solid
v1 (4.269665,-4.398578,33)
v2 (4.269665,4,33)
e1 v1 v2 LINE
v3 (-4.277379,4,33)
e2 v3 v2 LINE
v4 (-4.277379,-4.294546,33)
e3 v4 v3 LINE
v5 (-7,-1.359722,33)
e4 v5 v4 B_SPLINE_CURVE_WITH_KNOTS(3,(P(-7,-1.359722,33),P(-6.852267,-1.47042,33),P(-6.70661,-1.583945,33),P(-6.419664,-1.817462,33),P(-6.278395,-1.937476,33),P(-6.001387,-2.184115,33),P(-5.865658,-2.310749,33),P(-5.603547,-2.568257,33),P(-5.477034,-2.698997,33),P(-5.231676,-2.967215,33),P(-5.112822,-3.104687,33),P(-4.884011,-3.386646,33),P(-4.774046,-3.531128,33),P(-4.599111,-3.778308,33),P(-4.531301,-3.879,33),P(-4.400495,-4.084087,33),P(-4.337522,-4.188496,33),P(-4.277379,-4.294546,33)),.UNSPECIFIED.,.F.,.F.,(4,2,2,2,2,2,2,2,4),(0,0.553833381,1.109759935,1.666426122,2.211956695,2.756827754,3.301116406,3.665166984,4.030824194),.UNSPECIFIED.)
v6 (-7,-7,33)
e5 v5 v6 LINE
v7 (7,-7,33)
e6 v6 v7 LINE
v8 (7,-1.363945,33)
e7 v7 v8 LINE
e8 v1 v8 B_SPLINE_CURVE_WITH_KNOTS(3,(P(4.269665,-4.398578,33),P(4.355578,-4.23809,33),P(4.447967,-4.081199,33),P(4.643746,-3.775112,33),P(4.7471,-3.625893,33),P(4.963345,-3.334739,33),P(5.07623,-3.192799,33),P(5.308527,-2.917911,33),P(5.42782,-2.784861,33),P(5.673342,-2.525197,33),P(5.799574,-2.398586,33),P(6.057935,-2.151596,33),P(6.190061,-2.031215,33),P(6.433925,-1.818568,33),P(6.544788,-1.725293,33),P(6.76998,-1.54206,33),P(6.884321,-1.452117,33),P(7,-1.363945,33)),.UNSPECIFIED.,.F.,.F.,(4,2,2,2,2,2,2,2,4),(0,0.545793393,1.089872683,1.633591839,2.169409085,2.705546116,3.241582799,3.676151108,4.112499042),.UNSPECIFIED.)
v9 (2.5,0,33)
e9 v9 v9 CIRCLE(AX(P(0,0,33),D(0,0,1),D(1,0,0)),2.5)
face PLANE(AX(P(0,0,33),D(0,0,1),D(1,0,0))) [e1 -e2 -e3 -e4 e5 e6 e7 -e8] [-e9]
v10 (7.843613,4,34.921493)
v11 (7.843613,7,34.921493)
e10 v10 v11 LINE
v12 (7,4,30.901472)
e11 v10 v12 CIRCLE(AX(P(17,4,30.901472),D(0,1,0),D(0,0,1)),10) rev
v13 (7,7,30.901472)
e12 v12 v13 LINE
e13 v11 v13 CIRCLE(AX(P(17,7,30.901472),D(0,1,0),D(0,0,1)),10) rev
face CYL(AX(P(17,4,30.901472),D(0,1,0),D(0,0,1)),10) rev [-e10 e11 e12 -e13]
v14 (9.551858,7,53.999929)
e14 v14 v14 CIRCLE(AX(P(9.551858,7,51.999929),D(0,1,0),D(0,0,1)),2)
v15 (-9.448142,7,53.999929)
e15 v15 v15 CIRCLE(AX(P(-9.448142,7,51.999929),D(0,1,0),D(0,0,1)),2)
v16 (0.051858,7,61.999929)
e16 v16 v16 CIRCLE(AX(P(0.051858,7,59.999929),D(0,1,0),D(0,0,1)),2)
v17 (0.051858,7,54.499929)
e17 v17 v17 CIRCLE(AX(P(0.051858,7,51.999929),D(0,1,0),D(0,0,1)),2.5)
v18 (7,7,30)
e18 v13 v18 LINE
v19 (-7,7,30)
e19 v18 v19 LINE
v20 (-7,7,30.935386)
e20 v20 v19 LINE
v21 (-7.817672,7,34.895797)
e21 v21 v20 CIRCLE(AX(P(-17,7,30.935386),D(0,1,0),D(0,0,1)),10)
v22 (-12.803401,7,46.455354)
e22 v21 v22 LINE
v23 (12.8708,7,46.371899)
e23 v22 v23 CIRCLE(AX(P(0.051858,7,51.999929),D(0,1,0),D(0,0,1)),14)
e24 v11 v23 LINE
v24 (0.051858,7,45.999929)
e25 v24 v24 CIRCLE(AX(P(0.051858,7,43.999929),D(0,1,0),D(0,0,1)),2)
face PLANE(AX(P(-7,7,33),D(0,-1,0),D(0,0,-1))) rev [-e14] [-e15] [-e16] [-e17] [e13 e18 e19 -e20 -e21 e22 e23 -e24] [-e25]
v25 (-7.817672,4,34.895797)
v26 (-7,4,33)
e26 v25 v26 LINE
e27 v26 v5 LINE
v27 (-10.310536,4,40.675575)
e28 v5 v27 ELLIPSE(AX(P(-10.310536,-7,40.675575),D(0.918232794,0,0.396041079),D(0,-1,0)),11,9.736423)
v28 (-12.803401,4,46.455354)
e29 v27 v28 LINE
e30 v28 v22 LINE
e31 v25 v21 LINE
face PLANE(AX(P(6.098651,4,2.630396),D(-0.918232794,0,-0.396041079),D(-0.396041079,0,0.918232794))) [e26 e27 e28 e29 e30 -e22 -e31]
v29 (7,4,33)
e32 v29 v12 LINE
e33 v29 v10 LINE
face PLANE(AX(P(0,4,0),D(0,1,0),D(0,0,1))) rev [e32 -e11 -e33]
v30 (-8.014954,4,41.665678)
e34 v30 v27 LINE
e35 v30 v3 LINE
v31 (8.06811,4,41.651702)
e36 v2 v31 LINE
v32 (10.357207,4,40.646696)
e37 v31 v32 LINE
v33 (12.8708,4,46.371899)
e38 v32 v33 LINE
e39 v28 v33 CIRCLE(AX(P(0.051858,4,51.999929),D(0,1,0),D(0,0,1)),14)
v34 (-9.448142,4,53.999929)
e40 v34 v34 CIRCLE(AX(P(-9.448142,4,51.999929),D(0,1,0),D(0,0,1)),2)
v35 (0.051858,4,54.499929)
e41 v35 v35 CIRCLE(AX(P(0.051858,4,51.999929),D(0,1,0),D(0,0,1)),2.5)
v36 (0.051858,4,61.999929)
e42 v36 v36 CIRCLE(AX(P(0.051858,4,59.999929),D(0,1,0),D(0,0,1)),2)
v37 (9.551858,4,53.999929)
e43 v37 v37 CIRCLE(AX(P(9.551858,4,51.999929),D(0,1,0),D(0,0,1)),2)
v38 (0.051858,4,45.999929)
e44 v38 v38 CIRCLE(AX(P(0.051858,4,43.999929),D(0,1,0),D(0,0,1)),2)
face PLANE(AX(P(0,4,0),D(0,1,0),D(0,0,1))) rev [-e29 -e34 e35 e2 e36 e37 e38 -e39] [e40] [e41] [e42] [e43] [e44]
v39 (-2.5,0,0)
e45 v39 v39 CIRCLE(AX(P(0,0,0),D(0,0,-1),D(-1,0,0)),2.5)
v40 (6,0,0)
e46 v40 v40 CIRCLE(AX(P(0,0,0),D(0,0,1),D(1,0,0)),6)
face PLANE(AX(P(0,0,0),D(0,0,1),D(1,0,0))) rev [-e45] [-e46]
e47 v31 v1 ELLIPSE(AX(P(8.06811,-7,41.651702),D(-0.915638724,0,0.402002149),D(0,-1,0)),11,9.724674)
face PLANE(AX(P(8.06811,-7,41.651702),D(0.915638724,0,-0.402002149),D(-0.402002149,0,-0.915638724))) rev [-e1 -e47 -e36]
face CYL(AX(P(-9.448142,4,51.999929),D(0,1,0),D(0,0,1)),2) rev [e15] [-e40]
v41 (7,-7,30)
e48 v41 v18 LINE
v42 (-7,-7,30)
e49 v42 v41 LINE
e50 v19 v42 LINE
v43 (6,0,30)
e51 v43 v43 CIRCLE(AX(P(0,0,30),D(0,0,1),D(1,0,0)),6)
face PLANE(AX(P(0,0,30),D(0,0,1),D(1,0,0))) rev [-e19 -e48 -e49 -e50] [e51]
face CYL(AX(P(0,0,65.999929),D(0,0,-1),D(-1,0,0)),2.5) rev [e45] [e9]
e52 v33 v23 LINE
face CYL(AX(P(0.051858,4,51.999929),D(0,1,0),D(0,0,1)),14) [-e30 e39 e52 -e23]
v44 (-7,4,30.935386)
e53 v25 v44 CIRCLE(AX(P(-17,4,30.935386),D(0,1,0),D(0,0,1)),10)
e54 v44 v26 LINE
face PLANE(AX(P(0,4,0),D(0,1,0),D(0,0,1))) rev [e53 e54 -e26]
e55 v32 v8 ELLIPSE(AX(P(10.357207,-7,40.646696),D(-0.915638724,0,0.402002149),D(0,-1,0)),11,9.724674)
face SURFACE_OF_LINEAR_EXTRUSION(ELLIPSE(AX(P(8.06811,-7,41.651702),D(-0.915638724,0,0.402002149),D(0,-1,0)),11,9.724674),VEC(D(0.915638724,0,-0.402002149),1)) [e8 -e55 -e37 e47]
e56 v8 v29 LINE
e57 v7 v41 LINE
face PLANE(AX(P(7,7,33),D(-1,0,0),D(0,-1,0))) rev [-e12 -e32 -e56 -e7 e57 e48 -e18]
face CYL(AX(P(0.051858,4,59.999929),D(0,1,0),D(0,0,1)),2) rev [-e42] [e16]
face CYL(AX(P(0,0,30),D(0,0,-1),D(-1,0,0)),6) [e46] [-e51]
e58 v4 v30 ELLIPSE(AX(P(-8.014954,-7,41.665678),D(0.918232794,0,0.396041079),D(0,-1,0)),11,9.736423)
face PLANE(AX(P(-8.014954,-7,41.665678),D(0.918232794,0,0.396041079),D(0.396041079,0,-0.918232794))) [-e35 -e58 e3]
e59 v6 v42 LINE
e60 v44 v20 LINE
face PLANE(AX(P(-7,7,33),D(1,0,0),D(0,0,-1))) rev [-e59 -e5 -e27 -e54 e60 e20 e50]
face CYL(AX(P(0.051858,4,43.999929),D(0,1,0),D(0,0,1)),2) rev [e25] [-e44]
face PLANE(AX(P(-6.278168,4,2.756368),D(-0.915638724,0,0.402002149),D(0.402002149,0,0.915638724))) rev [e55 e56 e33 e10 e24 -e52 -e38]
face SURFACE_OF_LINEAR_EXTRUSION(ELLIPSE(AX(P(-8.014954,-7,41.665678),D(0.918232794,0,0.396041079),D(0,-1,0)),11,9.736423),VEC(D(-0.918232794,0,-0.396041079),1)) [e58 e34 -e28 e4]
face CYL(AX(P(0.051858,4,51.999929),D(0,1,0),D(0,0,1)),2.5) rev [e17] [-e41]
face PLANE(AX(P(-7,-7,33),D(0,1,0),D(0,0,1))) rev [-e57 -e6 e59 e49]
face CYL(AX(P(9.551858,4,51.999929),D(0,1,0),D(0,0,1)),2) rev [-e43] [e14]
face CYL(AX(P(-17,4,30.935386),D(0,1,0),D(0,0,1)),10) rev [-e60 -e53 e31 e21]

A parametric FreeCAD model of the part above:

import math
import FreeCAD as App
import Part
import Sketcher
from FreeCAD import Vector
Q = App.Units.Quantity


def add_polygon(sketch, points):
    """Adds a closed chain of lines whose ends are joined by coincident constraints."""
    first, n = sketch.GeometryCount, len(points)
    for a, b in zip(points, points[1:] + points[:1]):
        sketch.addGeometry(Part.LineSegment(App.Vector(*a, 0), App.Vector(*b, 0)), False)
    for i in range(n):
        sketch.addConstraint(Sketcher.Constraint("Coincident", first + i, 2, first + (i + 1) % n, 1))

doc = App.newDocument("Part")
body = doc.addObject("PartDesign::Body", "Body")

sketch1 = doc.addObject("Sketcher::SketchObject", "Sketch")
body.addObject(sketch1)
sketch1.AttachmentSupport = (doc.XY_Plane, [""])
sketch1.MapMode = "FlatFace"
sketch1.addGeometry(Part.Circle(Vector(0, 0, 0), Vector(0, 0, 1), 6), False)
sketch1.addConstraint([
    Sketcher.Constraint("Coincident", 0, 3, -1, 1),
    Sketcher.Constraint("Diameter", 0, Q("12 mm")),
])
pad1 = doc.addObject("PartDesign::Pad", "Pad")
body.addObject(pad1)
pad1.Profile = sketch1
pad1.Length = 30

sketch2 = doc.addObject("Sketcher::SketchObject", "Sketch001")
body.addObject(sketch2)
sketch2.AttachmentSupport = (doc.XY_Plane, [""])
sketch2.MapMode = "FlatFace"
sketch2.AttachmentOffset = App.Placement(Vector(0, 0, 30), App.Rotation())
add_polygon(sketch2, [(-7, 7), (-7, -7), (7, -7), (7, 7)])
sketch2.addConstraint([
    Sketcher.Constraint("Vertical", 0),
    Sketcher.Constraint("Horizontal", 1),
    Sketcher.Constraint("Vertical", 2),
    Sketcher.Constraint("Horizontal", 3),
    Sketcher.Constraint("Symmetric", 0, 2, 2, 2, -1, 1),
    Sketcher.Constraint("Equal", 3, 0),
    Sketcher.Constraint("DistanceX", 1, 1, 1, 2, Q("14 mm")),
])
pad2 = doc.addObject("PartDesign::Pad", "Pad001")
body.addObject(pad2)
pad2.Profile = sketch2
pad2.Length = 3

sketch3 = doc.addObject("Sketcher::SketchObject", "Sketch002")
body.addObject(sketch3)
sketch3.AttachmentSupport = (doc.XZ_Plane, [""])
sketch3.MapMode = "FlatFace"
sketch3.AttachmentOffset = App.Placement(Vector(0, 0, -7), App.Rotation())
sketch3.addGeometry([
    Part.ArcOfCircle(Part.Circle(Vector(-17, 30.9, 0), Vector(0, 0, 1), 10), math.radians(0), math.radians(23)),
    Part.LineSegment(Vector(-7.8, 34.9, 0), Vector(-12.8, 46.5, 0)),
    Part.ArcOfCircle(Part.Circle(Vector(0.1, 52, 0), Vector(0, 0, 1), 14), math.radians(0), math.radians(203)),
    Part.ArcOfCircle(Part.Circle(Vector(0.1, 52, 0), Vector(0, 0, 1), 14), math.radians(-24), math.radians(0)),
    Part.LineSegment(Vector(12.9, 46.4, 0), Vector(7.8, 34.9, 0)),
    Part.ArcOfCircle(Part.Circle(Vector(17, 30.9, 0), Vector(0, 0, 1), 10), math.radians(156), math.radians(180)),
    Part.LineSegment(Vector(7, 30.9, 0), Vector(7, 33, 0)),
    Part.LineSegment(Vector(7, 33, 0), Vector(-7, 33, 0)),
    Part.LineSegment(Vector(-7, 33, 0), Vector(-7, 30.9, 0)),
    Part.Circle(Vector(0.1, 44, 0), Vector(0, 0, 1), 2),
    Part.Circle(Vector(0.1, 60, 0), Vector(0, 0, 1), 2),
    Part.Circle(Vector(-9.4, 52, 0), Vector(0, 0, 1), 2),
    Part.Circle(Vector(0.1, 52, 0), Vector(0, 0, 1), 2.5),
    Part.Circle(Vector(9.6, 52, 0), Vector(0, 0, 1), 2),
], False)
sketch3.addConstraint([
    Sketcher.Constraint("Tangent", 0, 2, 1, 1),
    Sketcher.Constraint("Tangent", 1, 2, 2, 2),
    Sketcher.Constraint("Tangent", 2, 1, 3, 2),
    Sketcher.Constraint("Tangent", 3, 1, 4, 1),
    Sketcher.Constraint("Tangent", 4, 2, 5, 1),
    Sketcher.Constraint("Tangent", 5, 2, 6, 1),
    Sketcher.Constraint("Coincident", 6, 2, 7, 1),
    Sketcher.Constraint("Coincident", 7, 2, 8, 1),
    Sketcher.Constraint("Tangent", 8, 2, 0, 1),
    Sketcher.Constraint("Vertical", 6),
    Sketcher.Constraint("Horizontal", 7),
    Sketcher.Constraint("Vertical", 8),
    Sketcher.Constraint("Coincident", 12, 3, 2, 3),
    Sketcher.Constraint("Equal", 2, 3),
    Sketcher.Constraint("Equal", 0, 5),
    Sketcher.Constraint("Equal", 9, 10),
    Sketcher.Constraint("Equal", 10, 11),
    Sketcher.Constraint("Equal", 11, 13),
    Sketcher.Constraint("Horizontal", 3, 3, 11, 3),
    Sketcher.Constraint("Horizontal", 12, 3, 13, 3),
    Sketcher.Constraint("Horizontal", 13, 3, 2, 1),
    Sketcher.Constraint("Vertical", 3, 3, 9, 3),
    Sketcher.Constraint("Vertical", 9, 3, 10, 3),
    Sketcher.Constraint("Diameter", 9, Q("4 mm")),
    Sketcher.Constraint("Diameter", 12, Q("5 mm")),
    Sketcher.Constraint("Radius", 0, Q("10 mm")),
    Sketcher.Constraint("Radius", 2, Q("14 mm")),
    Sketcher.Constraint("DistanceX", 7, 2, 7, 1, Q("14 mm")),
    Sketcher.Constraint("DistanceX", 0, 3, -1, 1, Q("17 mm")),
    Sketcher.Constraint("DistanceY", -1, 1, 6, 2, Q("33 mm")),
    Sketcher.Constraint("DistanceY", 9, 3, 3, 3, Q("8 mm")),
    Sketcher.Constraint("DistanceY", 2, 3, 10, 3, Q("8 mm")),
    Sketcher.Constraint("DistanceX", 11, 3, 2, 3, Q("9.5 mm")),
    Sketcher.Constraint("DistanceX", 3, 3, 13, 3, Q("9.5 mm")),
    Sketcher.Constraint("DistanceX", 1, 2, -1, 1, Q("12.803401 mm")),
    Sketcher.Constraint("DistanceX", -1, 1, 3, 1, Q("12.8708 mm")),
    Sketcher.Constraint("DistanceY", -1, 1, 3, 1, Q("46.371899 mm")),
    Sketcher.Constraint("Distance", 1, Q("12.588918 mm")),
])
pad3 = doc.addObject("PartDesign::Pad", "Pad002")
body.addObject(pad3)
pad3.Profile = sketch3
pad3.Length = 3

sketch4 = doc.addObject("Sketcher::SketchObject", "Sketch003")
body.addObject(sketch4)
sketch4.Placement = App.Placement(Vector(6.098651, 0, 2.630396), App.Rotation(Vector(-0.396041079, 0, 0.918232794), Vector(0, 1, 0), Vector(-0.918232794, 0, -0.396041079), "ZXY"))
sketch4.addGeometry([
    Part.LineSegment(Vector(31.696621, 4, 0), Vector(31.696621, -7, 0)),
    Part.BSplineCurve([Vector(41.433043, 4, 0), Vector(31.696621, 4, 0), Vector(31.696621, -7, 0)], [3, 3], [3.141592654, 4.71238898], False, 2, [1, 0.707106781, 1], False),
    Part.LineSegment(Vector(41.433043, 4, 0), Vector(31.696621, 4, 0)),
], False)
sketch4.addConstraint([
    Sketcher.Constraint("Block", 1),
    Sketcher.Constraint("Coincident", 0, 2, 1, 2),
    Sketcher.Constraint("Coincident", 1, 1, 2, 1),
    Sketcher.Constraint("Coincident", 2, 2, 0, 1),
    Sketcher.Constraint("Vertical", 0),
    Sketcher.Constraint("Horizontal", 2),
])
pad4 = doc.addObject("PartDesign::Pad", "Pad003")
body.addObject(pad4)
pad4.Profile = sketch4
pad4.Length = 2.5
pad4.Reversed = True

sketch5 = doc.addObject("Sketcher::SketchObject", "Sketch004")
body.addObject(sketch5)
sketch5.Placement = App.Placement(Vector(-6.278168, 0, 2.756368), App.Rotation(Vector(-0.402002149, 0, -0.915638724), Vector(0, 1.000000001, 0), Vector(0.915638724, 0, -0.402002149), "ZXY"))
sketch5.addGeometry([
    Part.LineSegment(Vector(-31.656635, -7, 0), Vector(-31.656635, 4, 0)),
    Part.LineSegment(Vector(-31.656635, 4, 0), Vector(-41.381308, 4, 0)),
    Part.BSplineCurve([Vector(-31.656635, -7, 0), Vector(-31.656635, 4, 0), Vector(-41.381308, 4, 0)], [3, 3], [1.570796327, 3.141592654], False, 2, [1, 0.707106781, 1], False),
], False)
sketch5.addConstraint([
    Sketcher.Constraint("Block", 2),
    Sketcher.Constraint("Coincident", 0, 2, 1, 1),
    Sketcher.Constraint("Coincident", 1, 2, 2, 2),
    Sketcher.Constraint("Coincident", 2, 1, 0, 1),
    Sketcher.Constraint("Vertical", 0),
    Sketcher.Constraint("Horizontal", 1),
])
pad5 = doc.addObject("PartDesign::Pad", "Pad004")
body.addObject(pad5)
pad5.Profile = sketch5
pad5.Length = 2.5
pad5.Reversed = True

sketch6 = doc.addObject("Sketcher::SketchObject", "Sketch005")
body.addObject(sketch6)
sketch6.AttachmentSupport = (doc.XY_Plane, [""])
sketch6.MapMode = "FlatFace"
sketch6.addGeometry(Part.Circle(Vector(0, 0, 0), Vector(0, 0, 1), 2.5), False)
sketch6.addConstraint([
    Sketcher.Constraint("Coincident", 0, 3, -1, 1),
    Sketcher.Constraint("Diameter", 0, Q("5 mm")),
])
pocket1 = doc.addObject("PartDesign::Pocket", "Pocket")
body.addObject(pocket1)
pocket1.Profile = sketch6
pocket1.Type = "ThroughAll"
pocket1.Reversed = True

doc.recompute()
